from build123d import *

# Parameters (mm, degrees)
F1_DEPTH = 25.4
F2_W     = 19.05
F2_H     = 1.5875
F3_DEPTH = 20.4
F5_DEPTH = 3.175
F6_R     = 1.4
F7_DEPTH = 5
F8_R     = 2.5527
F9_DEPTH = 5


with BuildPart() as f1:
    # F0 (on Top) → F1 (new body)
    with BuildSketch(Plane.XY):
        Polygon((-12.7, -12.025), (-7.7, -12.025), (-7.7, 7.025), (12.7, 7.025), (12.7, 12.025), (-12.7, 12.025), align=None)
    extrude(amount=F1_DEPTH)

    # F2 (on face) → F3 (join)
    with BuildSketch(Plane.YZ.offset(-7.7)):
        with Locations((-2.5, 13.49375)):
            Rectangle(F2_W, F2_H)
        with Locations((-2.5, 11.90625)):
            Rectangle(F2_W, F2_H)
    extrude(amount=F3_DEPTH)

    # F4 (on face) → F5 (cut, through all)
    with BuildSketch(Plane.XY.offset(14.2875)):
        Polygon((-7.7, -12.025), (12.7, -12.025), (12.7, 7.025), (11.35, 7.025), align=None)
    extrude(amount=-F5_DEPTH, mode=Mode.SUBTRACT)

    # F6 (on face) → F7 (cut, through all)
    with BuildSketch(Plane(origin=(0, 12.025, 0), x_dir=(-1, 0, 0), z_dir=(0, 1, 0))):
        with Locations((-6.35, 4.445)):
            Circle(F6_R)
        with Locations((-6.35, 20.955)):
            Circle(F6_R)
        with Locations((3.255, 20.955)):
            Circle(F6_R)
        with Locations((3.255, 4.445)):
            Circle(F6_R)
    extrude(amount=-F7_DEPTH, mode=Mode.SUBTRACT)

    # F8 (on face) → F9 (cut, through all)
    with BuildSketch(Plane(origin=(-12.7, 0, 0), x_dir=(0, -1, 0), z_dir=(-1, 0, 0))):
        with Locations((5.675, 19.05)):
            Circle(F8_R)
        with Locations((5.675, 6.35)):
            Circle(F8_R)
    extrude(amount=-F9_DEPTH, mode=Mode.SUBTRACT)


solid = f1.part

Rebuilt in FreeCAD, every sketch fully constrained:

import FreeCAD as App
import Part
import Sketcher

V = App.Vector
Q = App.Units.Quantity


def add_polygon(sketch, points):
    """Adds a closed chain of lines whose ends are joined by coincident constraints."""
    first, n = sketch.GeometryCount, len(points)
    for a, b in zip(points, points[1:] + points[:1]):
        sketch.addGeometry(Part.LineSegment(App.Vector(*a, 0), App.Vector(*b, 0)), False)
    for i in range(n):
        sketch.addConstraint(Sketcher.Constraint("Coincident", first + i, 2, first + (i + 1) % n, 1))

doc = App.newDocument("Part")
body = doc.addObject("PartDesign::Body", "Body")

sketch1 = body.newObject("Sketcher::SketchObject", "Sketch")
sketch1.AttachmentSupport = (doc.getObject("XY_Plane"), [""])
sketch1.MapMode = "FlatFace"
add_polygon(sketch1, [(-12.7, -12), (-7.7, -12), (-7.7, 7), (12.7, 7), (12.7, 12), (-12.7, 12)])
sketch1.addConstraint(Sketcher.Constraint("Horizontal", 0))
sketch1.addConstraint(Sketcher.Constraint("Vertical", 1))
sketch1.addConstraint(Sketcher.Constraint("Horizontal", 2))
sketch1.addConstraint(Sketcher.Constraint("Vertical", 3))
sketch1.addConstraint(Sketcher.Constraint("Horizontal", 4))
sketch1.addConstraint(Sketcher.Constraint("Vertical", 5))
sketch1.addConstraint(Sketcher.Constraint("Symmetric", 3, 2, 5, 2, -1, 1))
sketch1.addConstraint(Sketcher.Constraint("Equal", 0, 3))
sketch1.addConstraint(Sketcher.Constraint("DistanceX", 4, 2, 4, 1, Q("1 in")))
sketch1.addConstraint(Sketcher.Constraint("DistanceY", 1, 1, 1, 2, Q("0.75 in")))
sketch1.addConstraint(Sketcher.Constraint("DistanceX", 0, 1, 0, 2, 5.0))
pad1 = body.newObject("PartDesign::Pad", "Pad")
pad1.Profile = sketch1
pad1.Length = Q("1 in")

sketch2 = body.newObject("Sketcher::SketchObject", "Sketch001")
sketch2.AttachmentSupport = (doc.getObject("YZ_Plane"), [""])
sketch2.MapMode = "FlatFace"
sketch2.AttachmentOffset = App.Placement(V(0, 0, -7.7), App.Rotation())
add_polygon(sketch2, [(-12, 14.3), (-12, 11.1), (7, 11.1), (7, 14.3)])
sketch2.addConstraint(Sketcher.Constraint("Vertical", 0))
sketch2.addConstraint(Sketcher.Constraint("Horizontal", 1))
sketch2.addConstraint(Sketcher.Constraint("Vertical", 2))
sketch2.addConstraint(Sketcher.Constraint("Horizontal", 3))
sketch2.addConstraint(Sketcher.Constraint("DistanceX", 1, 1, 1, 2, Q("0.75 in")))
sketch2.addConstraint(Sketcher.Constraint("DistanceY", 0, 2, 0, 1, Q("0.125 in")))
sketch2.addConstraint(Sketcher.Constraint("DistanceY", -1, 1, 0, 2, Q("0.4375 in")))
sketch2.addConstraint(Sketcher.Constraint("DistanceX", 0, 2, -1, 1, 12.025))
pad2 = body.newObject("PartDesign::Pad", "Pad001")
pad2.Profile = sketch2
pad2.Length = 20.4

sketch3 = body.newObject("Sketcher::SketchObject", "Sketch002")
sketch3.AttachmentSupport = (doc.getObject("XY_Plane"), [""])
sketch3.MapMode = "FlatFace"
sketch3.AttachmentOffset = App.Placement(V(0, 0, 0.5625 * 25.4), App.Rotation())
add_polygon(sketch3, [(-7.7, -12), (12.7, -12), (12.7, 7), (11.3, 7)])
sketch3.addConstraint(Sketcher.Constraint("Horizontal", 0))
sketch3.addConstraint(Sketcher.Constraint("Vertical", 1))
sketch3.addConstraint(Sketcher.Constraint("Horizontal", 2))
sketch3.addConstraint(Sketcher.Constraint("Angle", 3, Q("-135 deg")))
sketch3.addConstraint(Sketcher.Constraint("DistanceY", 1, 1, 1, 2, Q("0.75 in")))
sketch3.addConstraint(Sketcher.Constraint("DistanceX", -1, 1, 0, 2, Q("0.5 in")))
sketch3.addConstraint(Sketcher.Constraint("DistanceX", 0, 1, 0, 2, 20.4))
sketch3.addConstraint(Sketcher.Constraint("DistanceY", 0, 2, -1, 1, 12.025))
pocket1 = body.newObject("PartDesign::Pocket", "Pocket")
pocket1.Profile = sketch3
pocket1.Type = "ThroughAll"

sketch4 = body.newObject("Sketcher::SketchObject", "Sketch003")
sketch4.AttachmentSupport = (doc.getObject("XZ_Plane"), [""])
sketch4.MapMode = "FlatFace"
sketch4.AttachmentOffset = App.Placement(V(0, 0, -12.025), App.Rotation())
sketch4.addGeometry(Part.Circle(V(6.3, 4.4, 0), V(0, 0, 1), 1.4), False)
sketch4.addGeometry(Part.Circle(V(6.3, 21, 0), V(0, 0, 1), 1.4), False)
sketch4.addGeometry(Part.Circle(V(-3.3, 21, 0), V(0, 0, 1), 1.4), False)
sketch4.addGeometry(Part.Circle(V(-3.3, 4.4, 0), V(0, 0, 1), 1.4), False)
sketch4.addConstraint(Sketcher.Constraint("Equal", 0, 1))
sketch4.addConstraint(Sketcher.Constraint("Equal", 1, 2))
sketch4.addConstraint(Sketcher.Constraint("Equal", 2, 3))
sketch4.addConstraint(Sketcher.Constraint("Horizontal", 1, 3, 2, 3))
sketch4.addConstraint(Sketcher.Constraint("Horizontal", 0, 3, 3, 3))
sketch4.addConstraint(Sketcher.Constraint("Vertical", 0, 3, 1, 3))
sketch4.addConstraint(Sketcher.Constraint("Vertical", 2, 3, 3, 3))
sketch4.addConstraint(Sketcher.Constraint("Diameter", 0, 2.8))
sketch4.addConstraint(Sketcher.Constraint("DistanceX", -1, 1, 0, 3, Q("0.25 in")))
sketch4.addConstraint(Sketcher.Constraint("DistanceY", 0, 3, 1, 3, Q("0.65 in")))
sketch4.addConstraint(Sketcher.Constraint("DistanceY", -1, 1, 0, 3, Q("0.175 in")))
sketch4.addConstraint(Sketcher.Constraint("DistanceX", 2, 3, -1, 1, 3.255))
pocket2 = body.newObject("PartDesign::Pocket", "Pocket001")
pocket2.Profile = sketch4
pocket2.Type = "ThroughAll"
pocket2.Reversed = True

sketch5 = body.newObject("Sketcher::SketchObject", "Sketch004")
sketch5.AttachmentSupport = (doc.getObject("YZ_Plane"), [""])
sketch5.MapMode = "FlatFace"
sketch5.AttachmentOffset = App.Placement(V(0, 0, -0.5 * 25.4), App.Rotation())
sketch5.addGeometry(Part.Circle(V(-5.7, 19.1, 0), V(0, 0, 1), 2.6), False)
sketch5.addGeometry(Part.Circle(V(-5.7, 6.3, 0), V(0, 0, 1), 2.6), False)
sketch5.addConstraint(Sketcher.Constraint("Equal", 0, 1))
sketch5.addConstraint(Sketcher.Constraint("Vertical", 0, 3, 1, 3))
sketch5.addConstraint(Sketcher.Constraint("Diameter", 0, Q("0.201 in")))
sketch5.addConstraint(Sketcher.Constraint("DistanceY", 1, 3, 0, 3, Q("0.5 in")))
sketch5.addConstraint(Sketcher.Constraint("DistanceY", -1, 1, 0, 3, Q("0.75 in")))
sketch5.addConstraint(Sketcher.Constraint("DistanceX", 0, 3, -1, 1, 5.675))
pocket3 = body.newObject("PartDesign::Pocket", "Pocket002")
pocket3.Profile = sketch5
pocket3.Type = "ThroughAll"
pocket3.Reversed = True

doc.recompute()
